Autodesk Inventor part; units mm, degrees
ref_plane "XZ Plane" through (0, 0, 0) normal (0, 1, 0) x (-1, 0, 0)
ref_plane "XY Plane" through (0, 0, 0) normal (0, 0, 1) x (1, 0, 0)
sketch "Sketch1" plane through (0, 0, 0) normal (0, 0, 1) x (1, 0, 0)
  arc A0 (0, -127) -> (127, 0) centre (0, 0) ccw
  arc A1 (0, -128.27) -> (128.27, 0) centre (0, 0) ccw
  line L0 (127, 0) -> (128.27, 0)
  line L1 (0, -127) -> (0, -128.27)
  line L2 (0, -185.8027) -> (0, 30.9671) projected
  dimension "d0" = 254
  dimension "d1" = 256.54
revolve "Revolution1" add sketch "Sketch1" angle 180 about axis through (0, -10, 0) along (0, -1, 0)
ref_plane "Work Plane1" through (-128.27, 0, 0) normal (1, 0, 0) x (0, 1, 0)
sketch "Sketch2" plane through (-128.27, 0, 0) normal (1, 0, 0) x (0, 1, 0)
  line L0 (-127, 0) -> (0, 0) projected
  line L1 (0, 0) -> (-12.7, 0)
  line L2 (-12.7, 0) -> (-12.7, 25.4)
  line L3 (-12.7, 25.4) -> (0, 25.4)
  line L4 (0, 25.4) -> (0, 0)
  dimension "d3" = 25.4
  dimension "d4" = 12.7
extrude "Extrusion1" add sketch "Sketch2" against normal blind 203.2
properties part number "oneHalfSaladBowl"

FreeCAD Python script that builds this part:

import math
import FreeCAD as App
import Part
import Sketcher

V = App.Vector
Q = App.Units.Quantity


def add_polygon(sketch, points):
    """Adds a closed chain of lines whose ends are joined by coincident constraints."""
    first, n = sketch.GeometryCount, len(points)
    for a, b in zip(points, points[1:] + points[:1]):
        sketch.addGeometry(Part.LineSegment(App.Vector(*a, 0), App.Vector(*b, 0)), False)
    for i in range(n):
        sketch.addConstraint(Sketcher.Constraint("Coincident", first + i, 2, first + (i + 1) % n, 1))

doc = App.newDocument("Part")
params = doc.addObject("Spreadsheet::Sheet", "Params")
for row, (alias, value) in enumerate([
    ("sketch1_radius", "5 in"),
    ("sketch1_radius2", "5.05 in"),
    ("revolution_angle", "180 deg"),
    ("sketch2_height", "1 in"),
    ("sketch2_width", "0.5 in"),
    ("pad1_length", "8 in"),
], start=1):
    params.set(f"A{row}", alias)
    params.set(f"B{row}", "=" + value)
    params.setAlias(f"B{row}", alias)

body = doc.addObject("PartDesign::Body", "Body")
body.AllowCompound = True

# Sketch on XY plane
sketch1 = doc.addObject("Sketcher::SketchObject", "Sketch")
body.addObject(sketch1)
sketch1.AttachmentSupport = (doc.XY_Plane, [""])
sketch1.MapMode = "FlatFace"
sketch1.addGeometry(Part.ArcOfCircle(Part.Circle(V(0, 0, 0), V(0, 0, 1), 127), math.radians(-90), math.radians(0)), False)
sketch1.addGeometry(Part.LineSegment(V(0, -127, 0), V(0, -128.3, 0)), False)
sketch1.addGeometry(Part.ArcOfCircle(Part.Circle(V(0, 0, 0), V(0, 0, 1), 128.3), math.radians(-90), math.radians(0)), False)
sketch1.addGeometry(Part.LineSegment(V(128.3, 0, 0), V(127, 0, 0)), False)
sketch1.addConstraint(Sketcher.Constraint("Coincident", 0, 1, 1, 1))
sketch1.addConstraint(Sketcher.Constraint("Coincident", 1, 2, 2, 1))
sketch1.addConstraint(Sketcher.Constraint("Coincident", 2, 2, 3, 1))
sketch1.addConstraint(Sketcher.Constraint("Coincident", 3, 2, 0, 2))
sketch1.addConstraint(Sketcher.Constraint("Vertical", 1))
sketch1.addConstraint(Sketcher.Constraint("Horizontal", 3))
sketch1.addConstraint(Sketcher.Constraint("Coincident", 0, 3, -1, 1))
sketch1.addConstraint(Sketcher.Constraint("Coincident", 2, 3, -1, 1))
sketch1.addConstraint(Sketcher.Constraint("PointOnObject", 0, 1, -2))
sketch1.addConstraint(Sketcher.Constraint("PointOnObject", 2, 2, -1))
sketch1.addConstraint(Sketcher.Constraint("Radius", 0, Q("5 in")))
sketch1.addConstraint(Sketcher.Constraint("Radius", 2, Q("5.05 in")))
sketch1.setExpression("Constraints[10]", "Params.sketch1_radius")
sketch1.setExpression("Constraints[11]", "Params.sketch1_radius2")
revolution = doc.addObject("PartDesign::Revolution", "Revolution")
body.addObject(revolution)
revolution.Profile = sketch1
revolution.ReferenceAxis = (sketch1, ["V_Axis"])
revolution.setExpression("Angle", "Params.revolution_angle")
revolution.Reversed = True

# Sketch on YZ plane
sketch2 = doc.addObject("Sketcher::SketchObject", "Sketch001")
body.addObject(sketch2)
sketch2.AttachmentSupport = (doc.YZ_Plane, [""])
sketch2.MapMode = "FlatFace"
sketch2.AttachmentOffset = App.Placement(V(0, 0, -5.05 * 25.4), App.Rotation())
add_polygon(sketch2, [(-13, 25), (-13, 0), (0, 0), (0, 25)])  # lines 0-3
sketch2.addConstraint(Sketcher.Constraint("Vertical", 0))
sketch2.addConstraint(Sketcher.Constraint("Horizontal", 1))
sketch2.addConstraint(Sketcher.Constraint("Vertical", 2))
sketch2.addConstraint(Sketcher.Constraint("Horizontal", 3))
sketch2.addConstraint(Sketcher.Constraint("Coincident", 1, 2, -1, 1))
sketch2.addConstraint(Sketcher.Constraint("DistanceY", 0, 2, 0, 1, Q("1 in")))
sketch2.addConstraint(Sketcher.Constraint("DistanceX", 1, 1, 1, 2, Q("0.5 in")))
sketch2.setExpression("Constraints[9]", "Params.sketch2_height")
sketch2.setExpression("Constraints[10]", "Params.sketch2_width")
pad1 = doc.addObject("PartDesign::Pad", "Pad")
body.addObject(pad1)
pad1.Profile = sketch2
pad1.setExpression("Length", "Params.pad1_length")
pad1.Reversed = True

doc.recompute()
